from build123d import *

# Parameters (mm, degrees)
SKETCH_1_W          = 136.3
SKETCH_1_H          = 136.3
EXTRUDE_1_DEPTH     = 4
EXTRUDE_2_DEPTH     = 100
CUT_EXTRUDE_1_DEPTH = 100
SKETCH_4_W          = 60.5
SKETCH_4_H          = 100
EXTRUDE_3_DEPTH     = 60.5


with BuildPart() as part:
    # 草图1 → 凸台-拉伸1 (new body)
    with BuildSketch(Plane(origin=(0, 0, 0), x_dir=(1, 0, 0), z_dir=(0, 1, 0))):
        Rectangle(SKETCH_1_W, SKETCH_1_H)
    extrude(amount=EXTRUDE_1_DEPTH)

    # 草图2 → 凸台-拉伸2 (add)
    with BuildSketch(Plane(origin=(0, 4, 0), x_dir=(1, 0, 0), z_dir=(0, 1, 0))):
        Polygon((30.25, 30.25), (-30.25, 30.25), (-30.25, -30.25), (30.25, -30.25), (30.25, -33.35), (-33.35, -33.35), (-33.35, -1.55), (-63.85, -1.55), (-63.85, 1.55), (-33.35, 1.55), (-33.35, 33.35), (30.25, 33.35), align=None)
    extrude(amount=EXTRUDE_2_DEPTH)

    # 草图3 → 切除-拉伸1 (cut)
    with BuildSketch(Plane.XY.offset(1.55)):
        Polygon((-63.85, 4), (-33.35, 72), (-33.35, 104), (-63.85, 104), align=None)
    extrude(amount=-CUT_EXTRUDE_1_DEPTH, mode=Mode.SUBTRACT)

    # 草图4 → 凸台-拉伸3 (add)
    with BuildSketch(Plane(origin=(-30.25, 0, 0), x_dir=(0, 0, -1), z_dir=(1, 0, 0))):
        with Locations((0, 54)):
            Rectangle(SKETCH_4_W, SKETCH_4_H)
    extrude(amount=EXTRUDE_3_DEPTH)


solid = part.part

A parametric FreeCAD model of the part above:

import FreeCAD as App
import Part
import Sketcher

V = App.Vector
Q = App.Units.Quantity

doc = App.newDocument("Part")
params = doc.addObject("Spreadsheet::Sheet", "Params")
for row, (alias, value) in enumerate([
    ("sketch1_width", "136.3 mm"),
    ("pad1_length", "4 mm"),
    ("sketch2_width", "60.5 mm"),
    ("sketch2_width2", "63.6 mm"),
    ("sketch2_width3", "30.5 mm"),
    ("sketch2_height", "3.1 mm"),
    ("pad2_length", "100 mm"),
    ("sketch3_height", "32 mm"),
    ("sketch3_height2", "100 mm"),
    ("sketch3_width", "30.5 mm"),
    ("pocket1_length", "100 mm"),
    ("sketch4_width", "100 mm"),
    ("sketch4_height", "60.5 mm"),
    ("pad3_length", "60.5 mm"),
], start=1):
    params.set(f"A{row}", alias)
    params.set(f"B{row}", "=" + value)
    params.setAlias(f"B{row}", alias)

body = doc.addObject("PartDesign::Body", "Body")

sketch1 = doc.addObject("Sketcher::SketchObject", "Sketch")
body.addObject(sketch1)
sketch1.AttachmentSupport = (doc.XZ_Plane, [""])
sketch1.MapMode = "FlatFace"
sketch1.addGeometry([
    Part.LineSegment(V(-68, -68, 0), V(-68, 68, 0)),
    Part.LineSegment(V(-68, 68, 0), V(68, 68, 0)),
    Part.LineSegment(V(68, 68, 0), V(68, -68, 0)),
    Part.LineSegment(V(68, -68, 0), V(-68, -68, 0)),
], False)
sketch1.addConstraint([
    Sketcher.Constraint("Coincident", 0, 2, 1, 1),
    Sketcher.Constraint("Coincident", 1, 2, 2, 1),
    Sketcher.Constraint("Coincident", 2, 2, 3, 1),
    Sketcher.Constraint("Coincident", 3, 2, 0, 1),
    Sketcher.Constraint("Vertical", 0),
    Sketcher.Constraint("Horizontal", 1),
    Sketcher.Constraint("Vertical", 2),
    Sketcher.Constraint("Horizontal", 3),
    Sketcher.Constraint("Symmetric", 0, 2, 2, 2, -1, 1),
    Sketcher.Constraint("Equal", 3, 0),
    Sketcher.Constraint("DistanceX", 1, 1, 1, 2, Q("136.3 mm")),
])
sketch1.setExpression("Constraints[10]", "Params.sketch1_width")
pad1 = doc.addObject("PartDesign::Pad", "Pad")
body.addObject(pad1)
pad1.Profile = sketch1
pad1.setExpression("Length", "Params.pad1_length")
pad1.Reversed = True

sketch2 = doc.addObject("Sketcher::SketchObject", "Sketch001")
body.addObject(sketch2)
sketch2.AttachmentSupport = (doc.XZ_Plane, [""])
sketch2.MapMode = "FlatFace"
sketch2.AttachmentOffset = App.Placement(V(0, 0, -4), App.Rotation())
sketch2.addGeometry([
    Part.LineSegment(V(-30.2, -30.2, 0), V(30.2, -30.2, 0)),
    Part.LineSegment(V(30.2, -30.2, 0), V(30.2, -33.4, 0)),
    Part.LineSegment(V(30.2, -33.4, 0), V(-33.4, -33.4, 0)),
    Part.LineSegment(V(-33.4, -33.4, 0), V(-33.4, -1.6, 0)),
    Part.LineSegment(V(-33.4, -1.6, 0), V(-63.9, -1.6, 0)),
    Part.LineSegment(V(-63.9, -1.6, 0), V(-63.9, 1.6, 0)),
    Part.LineSegment(V(-63.9, 1.6, 0), V(-33.4, 1.6, 0)),
    Part.LineSegment(V(-33.4, 1.6, 0), V(-33.4, 33.4, 0)),
    Part.LineSegment(V(-33.4, 33.4, 0), V(30.2, 33.4, 0)),
    Part.LineSegment(V(30.2, 33.4, 0), V(30.2, 30.2, 0)),
    Part.LineSegment(V(30.2, 30.2, 0), V(-30.2, 30.2, 0)),
    Part.LineSegment(V(-30.2, 30.2, 0), V(-30.2, -30.2, 0)),
], False)
sketch2.addConstraint([
    Sketcher.Constraint("Coincident", 0, 2, 1, 1),
    Sketcher.Constraint("Coincident", 1, 2, 2, 1),
    Sketcher.Constraint("Coincident", 2, 2, 3, 1),
    Sketcher.Constraint("Coincident", 3, 2, 4, 1),
    Sketcher.Constraint("Coincident", 4, 2, 5, 1),
    Sketcher.Constraint("Coincident", 5, 2, 6, 1),
    Sketcher.Constraint("Coincident", 6, 2, 7, 1),
    Sketcher.Constraint("Coincident", 7, 2, 8, 1),
    Sketcher.Constraint("Coincident", 8, 2, 9, 1),
    Sketcher.Constraint("Coincident", 9, 2, 10, 1),
    Sketcher.Constraint("Coincident", 10, 2, 11, 1),
    Sketcher.Constraint("Coincident", 11, 2, 0, 1),
    Sketcher.Constraint("Horizontal", 0),
    Sketcher.Constraint("Vertical", 1),
    Sketcher.Constraint("Horizontal", 2),
    Sketcher.Constraint("Vertical", 3),
    Sketcher.Constraint("Horizontal", 4),
    Sketcher.Constraint("Vertical", 5),
    Sketcher.Constraint("Horizontal", 6),
    Sketcher.Constraint("Vertical", 7),
    Sketcher.Constraint("Horizontal", 8),
    Sketcher.Constraint("Vertical", 9),
    Sketcher.Constraint("Horizontal", 10),
    Sketcher.Constraint("Vertical", 11),
    Sketcher.Constraint("Symmetric", 0, 2, 10, 2, -1, 1),
    Sketcher.Constraint("Symmetric", 3, 2, 6, 2, -1),
    Sketcher.Constraint("Symmetric", 1, 2, 8, 2, -1),
    Sketcher.Constraint("Equal", 1, 5),
    Sketcher.Constraint("Equal", 10, 11),
    Sketcher.Constraint("DistanceX", 0, 1, 0, 2, Q("60.5 mm")),
    Sketcher.Constraint("DistanceX", 2, 2, 2, 1, Q("63.6 mm")),
    Sketcher.Constraint("DistanceX", 4, 2, 4, 1, Q("30.5 mm")),
    Sketcher.Constraint("DistanceY", 1, 2, 1, 1, Q("3.1 mm")),
])
sketch2.setExpression("Constraints[29]", "Params.sketch2_width")
sketch2.setExpression("Constraints[30]", "Params.sketch2_width2")
sketch2.setExpression("Constraints[31]", "Params.sketch2_width3")
sketch2.setExpression("Constraints[32]", "Params.sketch2_height")
pad2 = doc.addObject("PartDesign::Pad", "Pad001")
body.addObject(pad2)
pad2.Profile = sketch2
pad2.setExpression("Length", "Params.pad2_length")
pad2.Reversed = True

sketch3 = doc.addObject("Sketcher::SketchObject", "Sketch002")
body.addObject(sketch3)
sketch3.AttachmentSupport = (doc.XY_Plane, [""])
sketch3.MapMode = "FlatFace"
sketch3.AttachmentOffset = App.Placement(V(0, 0, 1.55), App.Rotation())
sketch3.addGeometry([
    Part.LineSegment(V(-64, 4, 0), V(-33, 72, 0)),
    Part.LineSegment(V(-33, 72, 0), V(-33, 104, 0)),
    Part.LineSegment(V(-33, 104, 0), V(-64, 104, 0)),
    Part.LineSegment(V(-64, 104, 0), V(-64, 4, 0)),
], False)
sketch3.addConstraint([
    Sketcher.Constraint("Coincident", 0, 2, 1, 1),
    Sketcher.Constraint("Coincident", 1, 2, 2, 1),
    Sketcher.Constraint("Coincident", 2, 2, 3, 1),
    Sketcher.Constraint("Coincident", 3, 2, 0, 1),
    Sketcher.Constraint("Vertical", 1),
    Sketcher.Constraint("Horizontal", 2),
    Sketcher.Constraint("Vertical", 3),
    Sketcher.Constraint("DistanceY", 1, 1, 1, 2, Q("32 mm")),
    Sketcher.Constraint("DistanceY", 3, 2, 3, 1, Q("100 mm")),
    Sketcher.Constraint("DistanceX", 2, 2, 2, 1, Q("30.5 mm")),
    Sketcher.Constraint("DistanceY", -1, 1, 0, 2, Q("72 mm")),
    Sketcher.Constraint("DistanceX", 0, 2, -1, 1, Q("33.35 mm")),
])
sketch3.setExpression("Constraints[7]", "Params.sketch3_height")
sketch3.setExpression("Constraints[8]", "Params.sketch3_height2")
sketch3.setExpression("Constraints[9]", "Params.sketch3_width")
pocket1 = doc.addObject("PartDesign::Pocket", "Pocket")
body.addObject(pocket1)
pocket1.Profile = sketch3
pocket1.setExpression("Length", "Params.pocket1_length")

sketch4 = doc.addObject("Sketcher::SketchObject", "Sketch003")
body.addObject(sketch4)
sketch4.AttachmentSupport = (doc.YZ_Plane, [""])
sketch4.MapMode = "FlatFace"
sketch4.AttachmentOffset = App.Placement(V(0, 0, -30.25), App.Rotation())
sketch4.addGeometry([
    Part.LineSegment(V(104, 30, 0), V(4, 30, 0)),
    Part.LineSegment(V(4, 30, 0), V(4, -30, 0)),
    Part.LineSegment(V(4, -30, 0), V(104, -30, 0)),
    Part.LineSegment(V(104, -30, 0), V(104, 30, 0)),
], False)
sketch4.addConstraint([
    Sketcher.Constraint("Coincident", 0, 2, 1, 1),
    Sketcher.Constraint("Coincident", 1, 2, 2, 1),
    Sketcher.Constraint("Coincident", 2, 2, 3, 1),
    Sketcher.Constraint("Coincident", 3, 2, 0, 1),
    Sketcher.Constraint("Horizontal", 0),
    Sketcher.Constraint("Vertical", 1),
    Sketcher.Constraint("Horizontal", 2),
    Sketcher.Constraint("Vertical", 3),
    Sketcher.Constraint("DistanceX", 0, 2, 0, 1, Q("100 mm")),
    Sketcher.Constraint("DistanceY", 1, 2, 1, 1, Q("60.5 mm")),
    Sketcher.Constraint("DistanceX", -1, 1, 0, 2, Q("4 mm")),
    Sketcher.Constraint("DistanceY", -1, 1, 0, 2, Q("30.25 mm")),
])
sketch4.setExpression("Constraints[8]", "Params.sketch4_width")
sketch4.setExpression("Constraints[9]", "Params.sketch4_height")
pad3 = doc.addObject("PartDesign::Pad", "Pad002")
body.addObject(pad3)
pad3.Profile = sketch4
pad3.setExpression("Length", "Params.pad3_length")

doc.recompute()
